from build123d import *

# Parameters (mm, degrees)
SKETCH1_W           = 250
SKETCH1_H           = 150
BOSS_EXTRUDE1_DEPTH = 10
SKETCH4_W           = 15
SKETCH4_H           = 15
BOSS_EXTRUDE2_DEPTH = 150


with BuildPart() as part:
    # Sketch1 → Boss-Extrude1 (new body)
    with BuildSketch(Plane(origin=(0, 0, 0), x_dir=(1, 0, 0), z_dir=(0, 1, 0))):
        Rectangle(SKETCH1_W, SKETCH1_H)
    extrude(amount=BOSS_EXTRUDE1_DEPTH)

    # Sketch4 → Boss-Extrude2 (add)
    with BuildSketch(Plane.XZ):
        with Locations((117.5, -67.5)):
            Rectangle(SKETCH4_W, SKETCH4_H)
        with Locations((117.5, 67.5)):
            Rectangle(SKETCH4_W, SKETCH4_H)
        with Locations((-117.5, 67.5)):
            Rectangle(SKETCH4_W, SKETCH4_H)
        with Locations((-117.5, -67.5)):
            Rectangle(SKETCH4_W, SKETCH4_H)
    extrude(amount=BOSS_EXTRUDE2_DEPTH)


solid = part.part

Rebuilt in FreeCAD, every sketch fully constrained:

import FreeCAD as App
import Part
import Sketcher
Q = App.Units.Quantity


def add_polygon(sketch, points):
    """Adds a closed chain of lines whose ends are joined by coincident constraints."""
    first, n = sketch.GeometryCount, len(points)
    for a, b in zip(points, points[1:] + points[:1]):
        sketch.addGeometry(Part.LineSegment(App.Vector(*a, 0), App.Vector(*b, 0)), False)
    for i in range(n):
        sketch.addConstraint(Sketcher.Constraint("Coincident", first + i, 2, first + (i + 1) % n, 1))

doc = App.newDocument("Part")
body = doc.addObject("PartDesign::Body", "Body")

sketch1 = doc.addObject("Sketcher::SketchObject", "Sketch")
body.addObject(sketch1)
sketch1.AttachmentSupport = (doc.XZ_Plane, [""])
sketch1.MapMode = "FlatFace"
add_polygon(sketch1, [(-125, -75), (-125, 75), (125, 75), (125, -75)])
sketch1.addConstraint([
    Sketcher.Constraint("Vertical", 0),
    Sketcher.Constraint("Horizontal", 1),
    Sketcher.Constraint("Vertical", 2),
    Sketcher.Constraint("Horizontal", 3),
    Sketcher.Constraint("Symmetric", 0, 2, 2, 2, -1, 1),
    Sketcher.Constraint("DistanceX", 1, 1, 1, 2, Q("250 mm")),
    Sketcher.Constraint("DistanceY", 0, 1, 0, 2, Q("150 mm")),
])
pad1 = doc.addObject("PartDesign::Pad", "Pad")
body.addObject(pad1)
pad1.Profile = sketch1
pad1.Length = 10
pad1.Reversed = True

sketch2 = doc.addObject("Sketcher::SketchObject", "Sketch001")
body.addObject(sketch2)
sketch2.AttachmentSupport = (doc.XZ_Plane, [""])
sketch2.MapMode = "FlatFace"
add_polygon(sketch2, [(110, -60), (110, -75), (125, -75), (125, -60)])
add_polygon(sketch2, [(110, 75), (110, 60), (125, 60), (125, 75)])
add_polygon(sketch2, [(-125, 75), (-125, 60), (-110, 60), (-110, 75)])
add_polygon(sketch2, [(-125, -60), (-125, -75), (-110, -75), (-110, -60)])
sketch2.addConstraint([
    Sketcher.Constraint("Vertical", 0),
    Sketcher.Constraint("Horizontal", 1),
    Sketcher.Constraint("Vertical", 2),
    Sketcher.Constraint("Horizontal", 3),
    Sketcher.Constraint("Vertical", 4),
    Sketcher.Constraint("Horizontal", 5),
    Sketcher.Constraint("Vertical", 6),
    Sketcher.Constraint("Horizontal", 7),
    Sketcher.Constraint("Vertical", 8),
    Sketcher.Constraint("Horizontal", 9),
    Sketcher.Constraint("Vertical", 10),
    Sketcher.Constraint("Horizontal", 11),
    Sketcher.Constraint("Vertical", 12),
    Sketcher.Constraint("Horizontal", 13),
    Sketcher.Constraint("Vertical", 14),
    Sketcher.Constraint("Horizontal", 15),
    Sketcher.Constraint("Symmetric", 2, 2, 8, 2, -1, 1),
    Sketcher.Constraint("Symmetric", 0, 2, 10, 2, -1, 1),
    Sketcher.Constraint("Symmetric", 6, 2, 12, 2, -1, 1),
    Sketcher.Constraint("Symmetric", 4, 2, 14, 2, -1, 1),
    Sketcher.Constraint("Symmetric", 5, 2, 8, 2, -2),
    Sketcher.Constraint("Symmetric", 7, 2, 10, 2, -2),
    Sketcher.Constraint("Equal", 15, 0),
    Sketcher.Constraint("DistanceX", 1, 1, 1, 2, Q("15 mm")),
    Sketcher.Constraint("DistanceX", -1, 1, 0, 2, Q("110 mm")),
    Sketcher.Constraint("DistanceY", 0, 2, -1, 1, Q("75 mm")),
])
pad2 = doc.addObject("PartDesign::Pad", "Pad001")
body.addObject(pad2)
pad2.Profile = sketch2
pad2.Length = 150

doc.recompute()
